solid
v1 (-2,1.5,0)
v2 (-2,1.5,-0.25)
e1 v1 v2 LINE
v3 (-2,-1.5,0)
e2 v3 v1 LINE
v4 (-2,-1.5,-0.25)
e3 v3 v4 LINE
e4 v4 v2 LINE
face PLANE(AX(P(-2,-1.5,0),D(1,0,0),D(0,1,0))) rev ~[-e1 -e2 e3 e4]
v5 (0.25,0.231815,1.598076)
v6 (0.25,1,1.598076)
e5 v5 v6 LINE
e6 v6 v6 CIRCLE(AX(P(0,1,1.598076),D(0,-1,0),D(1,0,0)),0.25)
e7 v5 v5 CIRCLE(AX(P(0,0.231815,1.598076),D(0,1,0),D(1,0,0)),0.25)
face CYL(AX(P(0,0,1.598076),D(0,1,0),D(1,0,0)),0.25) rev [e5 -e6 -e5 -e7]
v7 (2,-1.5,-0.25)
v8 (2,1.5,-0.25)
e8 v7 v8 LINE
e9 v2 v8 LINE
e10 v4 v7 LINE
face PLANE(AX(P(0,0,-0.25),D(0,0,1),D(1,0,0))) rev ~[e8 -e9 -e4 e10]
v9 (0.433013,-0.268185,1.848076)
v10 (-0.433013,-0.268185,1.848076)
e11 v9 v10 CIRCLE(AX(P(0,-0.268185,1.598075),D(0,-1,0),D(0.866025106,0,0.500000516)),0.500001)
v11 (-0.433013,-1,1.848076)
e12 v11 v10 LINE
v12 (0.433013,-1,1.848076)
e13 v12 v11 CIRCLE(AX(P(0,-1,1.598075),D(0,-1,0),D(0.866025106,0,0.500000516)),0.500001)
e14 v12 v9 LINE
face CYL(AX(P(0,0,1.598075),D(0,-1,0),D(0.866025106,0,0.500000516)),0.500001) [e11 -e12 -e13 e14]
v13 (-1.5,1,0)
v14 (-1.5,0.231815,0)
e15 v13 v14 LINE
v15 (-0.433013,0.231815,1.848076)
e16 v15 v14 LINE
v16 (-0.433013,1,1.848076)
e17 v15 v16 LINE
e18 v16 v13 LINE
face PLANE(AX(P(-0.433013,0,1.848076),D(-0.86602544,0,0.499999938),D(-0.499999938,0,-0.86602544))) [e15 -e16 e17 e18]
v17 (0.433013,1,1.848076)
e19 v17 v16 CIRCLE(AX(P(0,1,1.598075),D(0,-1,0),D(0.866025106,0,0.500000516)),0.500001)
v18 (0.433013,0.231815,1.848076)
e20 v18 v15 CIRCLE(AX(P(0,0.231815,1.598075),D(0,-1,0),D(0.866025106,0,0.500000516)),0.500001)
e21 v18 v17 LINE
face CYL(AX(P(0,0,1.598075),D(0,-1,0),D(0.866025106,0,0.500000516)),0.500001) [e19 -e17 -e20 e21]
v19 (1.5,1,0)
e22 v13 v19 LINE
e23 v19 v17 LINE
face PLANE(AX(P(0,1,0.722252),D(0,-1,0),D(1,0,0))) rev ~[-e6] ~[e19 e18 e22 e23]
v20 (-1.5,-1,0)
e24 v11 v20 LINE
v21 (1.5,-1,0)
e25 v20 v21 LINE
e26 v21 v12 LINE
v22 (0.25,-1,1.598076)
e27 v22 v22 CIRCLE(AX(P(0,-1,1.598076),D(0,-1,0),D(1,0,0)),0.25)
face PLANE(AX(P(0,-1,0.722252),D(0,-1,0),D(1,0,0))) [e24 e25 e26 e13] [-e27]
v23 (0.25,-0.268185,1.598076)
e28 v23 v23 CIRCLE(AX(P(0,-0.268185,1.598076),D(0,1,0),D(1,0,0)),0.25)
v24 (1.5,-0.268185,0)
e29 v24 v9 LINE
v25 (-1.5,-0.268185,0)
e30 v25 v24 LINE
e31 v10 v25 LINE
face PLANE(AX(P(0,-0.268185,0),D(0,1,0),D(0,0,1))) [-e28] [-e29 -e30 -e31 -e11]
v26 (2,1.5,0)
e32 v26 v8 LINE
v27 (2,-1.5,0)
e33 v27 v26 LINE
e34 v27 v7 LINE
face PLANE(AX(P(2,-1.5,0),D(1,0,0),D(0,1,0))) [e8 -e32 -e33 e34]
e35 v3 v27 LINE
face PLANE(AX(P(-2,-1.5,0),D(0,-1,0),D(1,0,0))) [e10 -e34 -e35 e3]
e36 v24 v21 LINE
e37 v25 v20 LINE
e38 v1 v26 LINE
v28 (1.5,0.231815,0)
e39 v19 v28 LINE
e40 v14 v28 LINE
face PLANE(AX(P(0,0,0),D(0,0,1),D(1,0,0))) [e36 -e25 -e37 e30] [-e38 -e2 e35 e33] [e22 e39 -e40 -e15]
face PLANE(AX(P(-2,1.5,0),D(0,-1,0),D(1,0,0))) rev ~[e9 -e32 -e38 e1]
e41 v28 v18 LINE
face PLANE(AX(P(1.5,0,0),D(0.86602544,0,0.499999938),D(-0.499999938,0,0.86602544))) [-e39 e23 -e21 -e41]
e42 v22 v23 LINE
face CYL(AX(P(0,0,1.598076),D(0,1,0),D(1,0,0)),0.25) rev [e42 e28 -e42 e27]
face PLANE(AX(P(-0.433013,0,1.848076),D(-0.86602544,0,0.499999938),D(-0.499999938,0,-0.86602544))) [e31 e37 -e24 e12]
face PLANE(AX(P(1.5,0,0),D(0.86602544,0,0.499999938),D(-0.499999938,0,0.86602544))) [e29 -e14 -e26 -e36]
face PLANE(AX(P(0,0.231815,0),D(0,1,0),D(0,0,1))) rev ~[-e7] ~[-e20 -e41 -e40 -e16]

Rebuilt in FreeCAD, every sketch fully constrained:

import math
import FreeCAD as App
import Part
import Sketcher
Q = App.Units.Quantity

doc = App.newDocument("Part")
body = doc.addObject("PartDesign::Body", "Body")

# Sketch on XY plane
sketch1 = doc.addObject("Sketcher::SketchObject", "Sketch")
body.addObject(sketch1)
sketch1.AttachmentSupport = (doc.XY_Plane, [""])
sketch1.MapMode = "FlatFace"
sketch1.addGeometry(Part.LineSegment(App.Vector(-2, 1.5, 0), App.Vector(-2, -1.5, 0)), False)
sketch1.addGeometry(Part.LineSegment(App.Vector(-2, -1.5, 0), App.Vector(2, -1.5, 0)), False)
sketch1.addGeometry(Part.LineSegment(App.Vector(2, -1.5, 0), App.Vector(2, 1.5, 0)), False)
sketch1.addGeometry(Part.LineSegment(App.Vector(2, 1.5, 0), App.Vector(-2, 1.5, 0)), False)
sketch1.addConstraint(Sketcher.Constraint("Coincident", 0, 2, 1, 1))
sketch1.addConstraint(Sketcher.Constraint("Coincident", 1, 2, 2, 1))
sketch1.addConstraint(Sketcher.Constraint("Coincident", 2, 2, 3, 1))
sketch1.addConstraint(Sketcher.Constraint("Coincident", 3, 2, 0, 1))
sketch1.addConstraint(Sketcher.Constraint("Vertical", 0))
sketch1.addConstraint(Sketcher.Constraint("Horizontal", 1))
sketch1.addConstraint(Sketcher.Constraint("Vertical", 2))
sketch1.addConstraint(Sketcher.Constraint("Horizontal", 3))
sketch1.addConstraint(Sketcher.Constraint("Symmetric", 0, 2, 2, 2, -1, 1))
sketch1.addConstraint(Sketcher.Constraint("DistanceX", 1, 1, 1, 2, 4.0))
sketch1.addConstraint(Sketcher.Constraint("DistanceY", 0, 2, 0, 1, 3.0))
pad1 = doc.addObject("PartDesign::Pad", "Pad")
body.addObject(pad1)
pad1.Profile = sketch1
pad1.Length = 0.25
pad1.Reversed = True

# Sketch on XZ plane
sketch2 = doc.addObject("Sketcher::SketchObject", "Sketch001")
body.addObject(sketch2)
sketch2.AttachmentSupport = (doc.XZ_Plane, [""])
sketch2.MapMode = "FlatFace"
sketch2.addGeometry(Part.LineSegment(App.Vector(-0.43, 1.85, 0), App.Vector(-1.5, 0, 0)), False)
sketch2.addGeometry(Part.LineSegment(App.Vector(-1.5, 0, 0), App.Vector(1.5, 0, 0)), False)
sketch2.addGeometry(Part.LineSegment(App.Vector(1.5, 0, 0), App.Vector(0.43, 1.85, 0)), False)
sketch2.addGeometry(Part.ArcOfCircle(Part.Circle(App.Vector(0, 1.6, 0), App.Vector(0, 0, 1), 0.5), math.radians(30), math.radians(150)), False)
sketch2.addGeometry(Part.Circle(App.Vector(0, 1.6, 0), App.Vector(0, 0, 1), 0.25), False)
sketch2.addConstraint(Sketcher.Constraint("Coincident", 0, 2, 1, 1))
sketch2.addConstraint(Sketcher.Constraint("Coincident", 1, 2, 2, 1))
sketch2.addConstraint(Sketcher.Constraint("Tangent", 2, 2, 3, 1))
sketch2.addConstraint(Sketcher.Constraint("Tangent", 3, 2, 0, 1))
sketch2.addConstraint(Sketcher.Constraint("Horizontal", 1))
sketch2.addConstraint(Sketcher.Constraint("Coincident", 4, 3, 3, 3))
sketch2.addConstraint(Sketcher.Constraint("Symmetric", 0, 2, 1, 2, -1, 1))
sketch2.addConstraint(Sketcher.Constraint("PointOnObject", 3, 3, -2))
sketch2.addConstraint(Sketcher.Constraint("Diameter", 4, 0.5))
sketch2.addConstraint(Sketcher.Constraint("Radius", 3, 0.500001))
sketch2.addConstraint(Sketcher.Constraint("DistanceX", 1, 1, 1, 2, 3.0))
sketch2.addConstraint(Sketcher.Constraint("Angle", 0, Q("-119.999996 deg")))
pad2 = doc.addObject("PartDesign::Pad", "Pad001")
body.addObject(pad2)
pad2.Profile = sketch2
pad2.Length = 2
pad2.Midplane = True

# Sketch on YZ plane
sketch3 = doc.addObject("Sketcher::SketchObject", "Sketch002")
body.addObject(sketch3)
sketch3.AttachmentSupport = (doc.YZ_Plane, [""])
sketch3.MapMode = "FlatFace"
sketch3.addGeometry(Part.LineSegment(App.Vector(-0.3, 2.1, 0), App.Vector(-0.3, 0, 0)), False)
sketch3.addGeometry(Part.LineSegment(App.Vector(-0.3, 0, 0), App.Vector(0.2, 0, 0)), False)
sketch3.addGeometry(Part.LineSegment(App.Vector(0.2, 0, 0), App.Vector(0.2, 2.1, 0)), False)
sketch3.addGeometry(Part.LineSegment(App.Vector(0.2, 2.1, 0), App.Vector(-0.3, 2.1, 0)), False)
sketch3.addConstraint(Sketcher.Constraint("Coincident", 0, 2, 1, 1))
sketch3.addConstraint(Sketcher.Constraint("Coincident", 1, 2, 2, 1))
sketch3.addConstraint(Sketcher.Constraint("Coincident", 2, 2, 3, 1))
sketch3.addConstraint(Sketcher.Constraint("Coincident", 3, 2, 0, 1))
sketch3.addConstraint(Sketcher.Constraint("Vertical", 0))
sketch3.addConstraint(Sketcher.Constraint("Horizontal", 1))
sketch3.addConstraint(Sketcher.Constraint("Vertical", 2))
sketch3.addConstraint(Sketcher.Constraint("Horizontal", 3))
sketch3.addConstraint(Sketcher.Constraint("PointOnObject", 0, 2, -1))
sketch3.addConstraint(Sketcher.Constraint("DistanceX", 1, 1, 1, 2, 0.5))
sketch3.addConstraint(Sketcher.Constraint("DistanceY", 0, 2, 0, 1, 2.124262))
sketch3.addConstraint(Sketcher.Constraint("DistanceX", 0, 2, -1, 1, 0.268185))
pocket1 = doc.addObject("PartDesign::Pocket", "Pocket")
body.addObject(pocket1)
pocket1.Profile = sketch3
pocket1.Length = 25
pocket1.Midplane = True

doc.recompute()
